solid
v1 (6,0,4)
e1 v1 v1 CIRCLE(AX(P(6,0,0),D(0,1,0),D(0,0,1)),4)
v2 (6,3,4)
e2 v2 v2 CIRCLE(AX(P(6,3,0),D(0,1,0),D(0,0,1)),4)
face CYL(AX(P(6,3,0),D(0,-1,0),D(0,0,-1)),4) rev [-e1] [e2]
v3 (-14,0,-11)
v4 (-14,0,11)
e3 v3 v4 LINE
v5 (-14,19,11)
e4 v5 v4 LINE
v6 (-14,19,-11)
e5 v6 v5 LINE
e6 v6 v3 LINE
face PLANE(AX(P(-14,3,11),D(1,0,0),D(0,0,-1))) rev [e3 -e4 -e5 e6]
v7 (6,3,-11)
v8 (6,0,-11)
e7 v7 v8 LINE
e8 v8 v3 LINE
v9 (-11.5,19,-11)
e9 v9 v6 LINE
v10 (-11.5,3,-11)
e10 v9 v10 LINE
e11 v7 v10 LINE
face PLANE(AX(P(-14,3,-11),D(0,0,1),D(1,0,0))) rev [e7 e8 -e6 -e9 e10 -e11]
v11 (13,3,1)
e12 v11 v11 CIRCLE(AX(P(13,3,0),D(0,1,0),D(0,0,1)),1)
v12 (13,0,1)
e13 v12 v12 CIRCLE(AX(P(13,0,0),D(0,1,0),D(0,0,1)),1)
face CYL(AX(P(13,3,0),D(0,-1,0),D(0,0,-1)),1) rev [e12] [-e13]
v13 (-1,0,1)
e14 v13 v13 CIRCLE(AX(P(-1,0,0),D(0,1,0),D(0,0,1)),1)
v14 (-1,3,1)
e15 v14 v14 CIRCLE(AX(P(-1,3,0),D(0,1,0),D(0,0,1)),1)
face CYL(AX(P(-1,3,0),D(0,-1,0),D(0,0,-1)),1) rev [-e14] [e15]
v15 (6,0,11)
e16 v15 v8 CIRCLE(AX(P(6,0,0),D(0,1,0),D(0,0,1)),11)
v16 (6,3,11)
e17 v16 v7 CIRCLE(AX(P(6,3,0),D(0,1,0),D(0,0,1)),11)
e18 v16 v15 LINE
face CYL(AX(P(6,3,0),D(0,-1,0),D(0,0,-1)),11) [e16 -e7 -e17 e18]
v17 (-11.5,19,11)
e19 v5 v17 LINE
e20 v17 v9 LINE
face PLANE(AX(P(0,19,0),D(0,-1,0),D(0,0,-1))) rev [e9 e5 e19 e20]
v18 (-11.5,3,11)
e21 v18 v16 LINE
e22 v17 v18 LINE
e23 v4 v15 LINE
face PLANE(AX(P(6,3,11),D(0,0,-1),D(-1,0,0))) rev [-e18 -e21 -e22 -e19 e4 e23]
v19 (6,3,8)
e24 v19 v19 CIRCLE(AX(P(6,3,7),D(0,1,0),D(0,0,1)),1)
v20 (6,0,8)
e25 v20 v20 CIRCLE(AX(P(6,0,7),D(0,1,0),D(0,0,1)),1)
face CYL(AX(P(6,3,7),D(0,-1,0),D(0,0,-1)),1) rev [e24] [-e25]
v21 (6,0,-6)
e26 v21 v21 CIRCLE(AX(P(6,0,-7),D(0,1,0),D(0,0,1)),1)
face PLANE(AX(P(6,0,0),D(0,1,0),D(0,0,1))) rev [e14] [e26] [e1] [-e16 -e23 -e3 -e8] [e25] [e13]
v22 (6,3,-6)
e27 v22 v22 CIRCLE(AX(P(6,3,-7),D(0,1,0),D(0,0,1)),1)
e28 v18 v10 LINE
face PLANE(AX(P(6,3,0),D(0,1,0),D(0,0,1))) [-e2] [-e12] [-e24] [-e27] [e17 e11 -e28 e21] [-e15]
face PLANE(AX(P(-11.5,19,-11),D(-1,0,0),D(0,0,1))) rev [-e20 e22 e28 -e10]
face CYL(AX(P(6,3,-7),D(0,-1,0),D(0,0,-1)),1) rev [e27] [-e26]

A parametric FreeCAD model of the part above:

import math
import FreeCAD as App
import Part
import Sketcher

doc = App.newDocument("Part")
params = doc.addObject("Spreadsheet::Sheet", "Params")
for row, (alias, value) in enumerate([
    ("sketch1_diameter", "2 mm"),
    ("sketch1_diameter2", "8 mm"),
    ("sketch1_radius", "11 mm"),
    ("sketch1_width", "20 mm"),
    ("pad1_length", "3 mm"),
    ("sketch2_height", "22 mm"),
    ("sketch2_width", "2.5 mm"),
    ("pad2_length", "16 mm"),
], start=1):
    params.set(f"A{row}", alias)
    params.set(f"B{row}", "=" + value)
    params.setAlias(f"B{row}", alias)

body = doc.addObject("PartDesign::Body", "Body")

# Sketch on XZ plane
sketch1 = body.newObject("Sketcher::SketchObject", "Sketch")
sketch1.AttachmentSupport = (doc.getObject("XZ_Plane"), [""])
sketch1.MapMode = "FlatFace"
sketch1.addGeometry([
    Part.LineSegment(App.Vector(-14, -11, 0), App.Vector(-14, 11, 0)),  # 0
    Part.LineSegment(App.Vector(-14, 11, 0), App.Vector(6, 11, 0)),  # 1
    Part.ArcOfCircle(Part.Circle(App.Vector(6, 0, 0), App.Vector(0, 0, 1), 11), math.radians(-90), math.radians(90)),  # 2
    Part.LineSegment(App.Vector(6, -11, 0), App.Vector(-14, -11, 0)),  # 3
    Part.Circle(App.Vector(6, 7, 0), App.Vector(0, 0, 1), 1),  # 4
    Part.Circle(App.Vector(13, 0, 0), App.Vector(0, 0, 1), 1),  # 5
    Part.Circle(App.Vector(6, 0, 0), App.Vector(0, 0, 1), 4),  # 6
    Part.Circle(App.Vector(-1, 0, 0), App.Vector(0, 0, 1), 1),  # 7
    Part.Circle(App.Vector(6, -7, 0), App.Vector(0, 0, 1), 1),  # 8
], False)
sketch1.addConstraint([
    Sketcher.Constraint("Coincident", 0, 2, 1, 1),
    Sketcher.Constraint("Tangent", 1, 2, 2, 2),
    Sketcher.Constraint("Tangent", 2, 1, 3, 1),
    Sketcher.Constraint("Coincident", 3, 2, 0, 1),
    Sketcher.Constraint("Vertical", 0),
    Sketcher.Constraint("Horizontal", 1),
    Sketcher.Constraint("Horizontal", 3),
    Sketcher.Constraint("Coincident", 6, 3, 2, 3),
    Sketcher.Constraint("Equal", 4, 5),
    Sketcher.Constraint("Equal", 5, 7),
    Sketcher.Constraint("Equal", 7, 8),
    Sketcher.Constraint("Symmetric", 4, 3, 8, 3, -1),
    Sketcher.Constraint("PointOnObject", 2, 3, -1),
    Sketcher.Constraint("PointOnObject", 5, 3, -1),
    Sketcher.Constraint("PointOnObject", 7, 3, -1),
    Sketcher.Constraint("Vertical", 2, 3, 4, 3),
    Sketcher.Constraint("Diameter", 4, 2.0),
    Sketcher.Constraint("Diameter", 6, 8.0),
    Sketcher.Constraint("Radius", 2, 11.0),
    Sketcher.Constraint("DistanceX", 1, 1, 1, 2, 20.0),
    Sketcher.Constraint("DistanceX", -1, 1, 2, 3, 6.0),
    Sketcher.Constraint("DistanceY", -1, 1, 4, 3, 7.0),
    Sketcher.Constraint("DistanceX", -1, 1, 5, 3, 13.0),
    Sketcher.Constraint("DistanceX", 7, 3, -1, 1, 1.0),
])
sketch1.setExpression("Constraints[16]", "Params.sketch1_diameter")
sketch1.setExpression("Constraints[17]", "Params.sketch1_diameter2")
sketch1.setExpression("Constraints[18]", "Params.sketch1_radius")
sketch1.setExpression("Constraints[19]", "Params.sketch1_width")
pad1 = body.newObject("PartDesign::Pad", "Pad")
pad1.Profile = sketch1
pad1.setExpression("Length", "Params.pad1_length")
pad1.Reversed = True

# Sketch on XZ plane
sketch2 = body.newObject("Sketcher::SketchObject", "Sketch001")
sketch2.AttachmentSupport = (doc.getObject("XZ_Plane"), [""])
sketch2.MapMode = "FlatFace"
sketch2.AttachmentOffset = App.Placement(App.Vector(0, 0, -3), App.Rotation())
sketch2.addGeometry([
    Part.LineSegment(App.Vector(-14, -11, 0), App.Vector(-14, 11, 0)),
    Part.LineSegment(App.Vector(-14, 11, 0), App.Vector(-11.5, 11, 0)),
    Part.LineSegment(App.Vector(-11.5, 11, 0), App.Vector(-11.5, -11, 0)),
    Part.LineSegment(App.Vector(-11.5, -11, 0), App.Vector(-14, -11, 0)),
], False)
sketch2.addConstraint([
    Sketcher.Constraint("Coincident", 0, 2, 1, 1),
    Sketcher.Constraint("Coincident", 1, 2, 2, 1),
    Sketcher.Constraint("Coincident", 2, 2, 3, 1),
    Sketcher.Constraint("Coincident", 3, 2, 0, 1),
    Sketcher.Constraint("Vertical", 0),
    Sketcher.Constraint("Horizontal", 1),
    Sketcher.Constraint("Vertical", 2),
    Sketcher.Constraint("Horizontal", 3),
    Sketcher.Constraint("DistanceY", 0, 1, 0, 2, 22.0),
    Sketcher.Constraint("DistanceX", 1, 1, 1, 2, 2.5),
    Sketcher.Constraint("DistanceX", 0, 2, -1, 1, 14.0),
    Sketcher.Constraint("DistanceY", -1, 1, 0, 2, 11.0),
])
sketch2.setExpression("Constraints[8]", "Params.sketch2_height")
sketch2.setExpression("Constraints[9]", "Params.sketch2_width")
pad2 = body.newObject("PartDesign::Pad", "Pad001")
pad2.Profile = sketch2
pad2.setExpression("Length", "Params.pad2_length")
pad2.Reversed = True

doc.recompute()
